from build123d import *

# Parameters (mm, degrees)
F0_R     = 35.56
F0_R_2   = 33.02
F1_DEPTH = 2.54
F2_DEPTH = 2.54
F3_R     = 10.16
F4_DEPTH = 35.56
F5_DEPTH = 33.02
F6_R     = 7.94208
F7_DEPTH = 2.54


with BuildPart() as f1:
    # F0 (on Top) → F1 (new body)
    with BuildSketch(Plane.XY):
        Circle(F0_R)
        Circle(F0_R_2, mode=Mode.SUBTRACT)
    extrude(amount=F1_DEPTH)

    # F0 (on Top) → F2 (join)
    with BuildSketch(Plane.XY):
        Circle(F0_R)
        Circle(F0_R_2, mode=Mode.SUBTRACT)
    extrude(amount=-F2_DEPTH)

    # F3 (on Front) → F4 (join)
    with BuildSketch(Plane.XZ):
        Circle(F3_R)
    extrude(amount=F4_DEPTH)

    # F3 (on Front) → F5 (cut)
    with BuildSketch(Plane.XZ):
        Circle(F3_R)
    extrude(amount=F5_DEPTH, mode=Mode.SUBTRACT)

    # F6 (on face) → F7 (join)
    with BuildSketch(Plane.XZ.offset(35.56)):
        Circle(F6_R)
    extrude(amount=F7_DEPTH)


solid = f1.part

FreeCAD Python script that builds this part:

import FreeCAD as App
import Part
import Sketcher
Q = App.Units.Quantity

doc = App.newDocument("Part")
params = doc.addObject("Spreadsheet::Sheet", "Params")
for row, (alias, value) in enumerate([
    ("sketch1_diameter", "2.8 in"),
    ("sketch1_diameter2", "2.6 in"),
    ("pad1_length", "0.1 in"),
    ("sketch2_diameter", "2.8 in"),
    ("sketch2_diameter2", "2.6 in"),
    ("pad2_length", "0.1 in"),
    ("sketch3_diameter", "0.8 in"),
    ("pad3_length", "1.4 in"),
    ("sketch4_diameter", "0.8 in"),
    ("pocket1_length", "1.3 in"),
    ("pad4_length", "0.1 in"),
], start=1):
    params.set(f"A{row}", alias)
    params.set(f"B{row}", "=" + value)
    params.setAlias(f"B{row}", alias)

body = doc.addObject("PartDesign::Body", "Body")

sketch1 = body.newObject("Sketcher::SketchObject", "Sketch")
sketch1.AttachmentSupport = (doc.getObject("XY_Plane"), [""])
sketch1.MapMode = "FlatFace"
sketch1.addGeometry([
    Part.Circle(App.Vector(0, 0, 0), App.Vector(0, 0, 1), 36),
    Part.Circle(App.Vector(0, 0, 0), App.Vector(0, 0, 1), 33),
], False)
sketch1.addConstraint([
    Sketcher.Constraint("Coincident", 0, 3, -1, 1),
    Sketcher.Constraint("Coincident", 1, 3, -1, 1),
    Sketcher.Constraint("Diameter", 0, Q("2.8 in")),
    Sketcher.Constraint("Diameter", 1, Q("2.6 in")),
])
sketch1.setExpression("Constraints[2]", "Params.sketch1_diameter")
sketch1.setExpression("Constraints[3]", "Params.sketch1_diameter2")
pad1 = body.newObject("PartDesign::Pad", "Pad")
pad1.Profile = sketch1
pad1.setExpression("Length", "Params.pad1_length")

sketch2 = body.newObject("Sketcher::SketchObject", "Sketch001")
sketch2.AttachmentSupport = (doc.getObject("XY_Plane"), [""])
sketch2.MapMode = "FlatFace"
sketch2.addGeometry([
    Part.Circle(App.Vector(0, 0, 0), App.Vector(0, 0, 1), 36),
    Part.Circle(App.Vector(0, 0, 0), App.Vector(0, 0, 1), 33),
], False)
sketch2.addConstraint([
    Sketcher.Constraint("Coincident", 0, 3, -1, 1),
    Sketcher.Constraint("Coincident", 1, 3, -1, 1),
    Sketcher.Constraint("Diameter", 0, Q("2.8 in")),
    Sketcher.Constraint("Diameter", 1, Q("2.6 in")),
])
sketch2.setExpression("Constraints[2]", "Params.sketch2_diameter")
sketch2.setExpression("Constraints[3]", "Params.sketch2_diameter2")
pad2 = body.newObject("PartDesign::Pad", "Pad001")
pad2.Profile = sketch2
pad2.setExpression("Length", "Params.pad2_length")
pad2.Reversed = True

sketch3 = body.newObject("Sketcher::SketchObject", "Sketch002")
sketch3.AttachmentSupport = (doc.getObject("XZ_Plane"), [""])
sketch3.MapMode = "FlatFace"
sketch3.addGeometry(Part.Circle(App.Vector(0, 0, 0), App.Vector(0, 0, 1), 10), False)
sketch3.addConstraint([
    Sketcher.Constraint("Coincident", 0, 3, -1, 1),
    Sketcher.Constraint("Diameter", 0, Q("0.8 in")),
])
sketch3.setExpression("Constraints[1]", "Params.sketch3_diameter")
pad3 = body.newObject("PartDesign::Pad", "Pad002")
pad3.Profile = sketch3
pad3.setExpression("Length", "Params.pad3_length")

sketch4 = body.newObject("Sketcher::SketchObject", "Sketch003")
sketch4.AttachmentSupport = (doc.getObject("XZ_Plane"), [""])
sketch4.MapMode = "FlatFace"
sketch4.addGeometry(Part.Circle(App.Vector(0, 0, 0), App.Vector(0, 0, 1), 10), False)
sketch4.addConstraint([
    Sketcher.Constraint("Coincident", 0, 3, -1, 1),
    Sketcher.Constraint("Diameter", 0, Q("0.8 in")),
])
sketch4.setExpression("Constraints[1]", "Params.sketch4_diameter")
pocket1 = body.newObject("PartDesign::Pocket", "Pocket")
pocket1.Profile = sketch4
pocket1.setExpression("Length", "Params.pocket1_length")
pocket1.Reversed = True

sketch5 = body.newObject("Sketcher::SketchObject", "Sketch004")
sketch5.AttachmentSupport = (doc.getObject("XZ_Plane"), [""])
sketch5.MapMode = "FlatFace"
sketch5.AttachmentOffset = App.Placement(App.Vector(0, 0, 1.4 * 25.4), App.Rotation())
sketch5.addGeometry(Part.Circle(App.Vector(0, 0, 0), App.Vector(0, 0, 1), 8), False)
sketch5.addConstraint([
    Sketcher.Constraint("Coincident", 0, 3, -1, 1),
    Sketcher.Constraint("Diameter", 0, 15.88416),
])
pad4 = body.newObject("PartDesign::Pad", "Pad003")
pad4.Profile = sketch5
pad4.setExpression("Length", "Params.pad4_length")

doc.recompute()
